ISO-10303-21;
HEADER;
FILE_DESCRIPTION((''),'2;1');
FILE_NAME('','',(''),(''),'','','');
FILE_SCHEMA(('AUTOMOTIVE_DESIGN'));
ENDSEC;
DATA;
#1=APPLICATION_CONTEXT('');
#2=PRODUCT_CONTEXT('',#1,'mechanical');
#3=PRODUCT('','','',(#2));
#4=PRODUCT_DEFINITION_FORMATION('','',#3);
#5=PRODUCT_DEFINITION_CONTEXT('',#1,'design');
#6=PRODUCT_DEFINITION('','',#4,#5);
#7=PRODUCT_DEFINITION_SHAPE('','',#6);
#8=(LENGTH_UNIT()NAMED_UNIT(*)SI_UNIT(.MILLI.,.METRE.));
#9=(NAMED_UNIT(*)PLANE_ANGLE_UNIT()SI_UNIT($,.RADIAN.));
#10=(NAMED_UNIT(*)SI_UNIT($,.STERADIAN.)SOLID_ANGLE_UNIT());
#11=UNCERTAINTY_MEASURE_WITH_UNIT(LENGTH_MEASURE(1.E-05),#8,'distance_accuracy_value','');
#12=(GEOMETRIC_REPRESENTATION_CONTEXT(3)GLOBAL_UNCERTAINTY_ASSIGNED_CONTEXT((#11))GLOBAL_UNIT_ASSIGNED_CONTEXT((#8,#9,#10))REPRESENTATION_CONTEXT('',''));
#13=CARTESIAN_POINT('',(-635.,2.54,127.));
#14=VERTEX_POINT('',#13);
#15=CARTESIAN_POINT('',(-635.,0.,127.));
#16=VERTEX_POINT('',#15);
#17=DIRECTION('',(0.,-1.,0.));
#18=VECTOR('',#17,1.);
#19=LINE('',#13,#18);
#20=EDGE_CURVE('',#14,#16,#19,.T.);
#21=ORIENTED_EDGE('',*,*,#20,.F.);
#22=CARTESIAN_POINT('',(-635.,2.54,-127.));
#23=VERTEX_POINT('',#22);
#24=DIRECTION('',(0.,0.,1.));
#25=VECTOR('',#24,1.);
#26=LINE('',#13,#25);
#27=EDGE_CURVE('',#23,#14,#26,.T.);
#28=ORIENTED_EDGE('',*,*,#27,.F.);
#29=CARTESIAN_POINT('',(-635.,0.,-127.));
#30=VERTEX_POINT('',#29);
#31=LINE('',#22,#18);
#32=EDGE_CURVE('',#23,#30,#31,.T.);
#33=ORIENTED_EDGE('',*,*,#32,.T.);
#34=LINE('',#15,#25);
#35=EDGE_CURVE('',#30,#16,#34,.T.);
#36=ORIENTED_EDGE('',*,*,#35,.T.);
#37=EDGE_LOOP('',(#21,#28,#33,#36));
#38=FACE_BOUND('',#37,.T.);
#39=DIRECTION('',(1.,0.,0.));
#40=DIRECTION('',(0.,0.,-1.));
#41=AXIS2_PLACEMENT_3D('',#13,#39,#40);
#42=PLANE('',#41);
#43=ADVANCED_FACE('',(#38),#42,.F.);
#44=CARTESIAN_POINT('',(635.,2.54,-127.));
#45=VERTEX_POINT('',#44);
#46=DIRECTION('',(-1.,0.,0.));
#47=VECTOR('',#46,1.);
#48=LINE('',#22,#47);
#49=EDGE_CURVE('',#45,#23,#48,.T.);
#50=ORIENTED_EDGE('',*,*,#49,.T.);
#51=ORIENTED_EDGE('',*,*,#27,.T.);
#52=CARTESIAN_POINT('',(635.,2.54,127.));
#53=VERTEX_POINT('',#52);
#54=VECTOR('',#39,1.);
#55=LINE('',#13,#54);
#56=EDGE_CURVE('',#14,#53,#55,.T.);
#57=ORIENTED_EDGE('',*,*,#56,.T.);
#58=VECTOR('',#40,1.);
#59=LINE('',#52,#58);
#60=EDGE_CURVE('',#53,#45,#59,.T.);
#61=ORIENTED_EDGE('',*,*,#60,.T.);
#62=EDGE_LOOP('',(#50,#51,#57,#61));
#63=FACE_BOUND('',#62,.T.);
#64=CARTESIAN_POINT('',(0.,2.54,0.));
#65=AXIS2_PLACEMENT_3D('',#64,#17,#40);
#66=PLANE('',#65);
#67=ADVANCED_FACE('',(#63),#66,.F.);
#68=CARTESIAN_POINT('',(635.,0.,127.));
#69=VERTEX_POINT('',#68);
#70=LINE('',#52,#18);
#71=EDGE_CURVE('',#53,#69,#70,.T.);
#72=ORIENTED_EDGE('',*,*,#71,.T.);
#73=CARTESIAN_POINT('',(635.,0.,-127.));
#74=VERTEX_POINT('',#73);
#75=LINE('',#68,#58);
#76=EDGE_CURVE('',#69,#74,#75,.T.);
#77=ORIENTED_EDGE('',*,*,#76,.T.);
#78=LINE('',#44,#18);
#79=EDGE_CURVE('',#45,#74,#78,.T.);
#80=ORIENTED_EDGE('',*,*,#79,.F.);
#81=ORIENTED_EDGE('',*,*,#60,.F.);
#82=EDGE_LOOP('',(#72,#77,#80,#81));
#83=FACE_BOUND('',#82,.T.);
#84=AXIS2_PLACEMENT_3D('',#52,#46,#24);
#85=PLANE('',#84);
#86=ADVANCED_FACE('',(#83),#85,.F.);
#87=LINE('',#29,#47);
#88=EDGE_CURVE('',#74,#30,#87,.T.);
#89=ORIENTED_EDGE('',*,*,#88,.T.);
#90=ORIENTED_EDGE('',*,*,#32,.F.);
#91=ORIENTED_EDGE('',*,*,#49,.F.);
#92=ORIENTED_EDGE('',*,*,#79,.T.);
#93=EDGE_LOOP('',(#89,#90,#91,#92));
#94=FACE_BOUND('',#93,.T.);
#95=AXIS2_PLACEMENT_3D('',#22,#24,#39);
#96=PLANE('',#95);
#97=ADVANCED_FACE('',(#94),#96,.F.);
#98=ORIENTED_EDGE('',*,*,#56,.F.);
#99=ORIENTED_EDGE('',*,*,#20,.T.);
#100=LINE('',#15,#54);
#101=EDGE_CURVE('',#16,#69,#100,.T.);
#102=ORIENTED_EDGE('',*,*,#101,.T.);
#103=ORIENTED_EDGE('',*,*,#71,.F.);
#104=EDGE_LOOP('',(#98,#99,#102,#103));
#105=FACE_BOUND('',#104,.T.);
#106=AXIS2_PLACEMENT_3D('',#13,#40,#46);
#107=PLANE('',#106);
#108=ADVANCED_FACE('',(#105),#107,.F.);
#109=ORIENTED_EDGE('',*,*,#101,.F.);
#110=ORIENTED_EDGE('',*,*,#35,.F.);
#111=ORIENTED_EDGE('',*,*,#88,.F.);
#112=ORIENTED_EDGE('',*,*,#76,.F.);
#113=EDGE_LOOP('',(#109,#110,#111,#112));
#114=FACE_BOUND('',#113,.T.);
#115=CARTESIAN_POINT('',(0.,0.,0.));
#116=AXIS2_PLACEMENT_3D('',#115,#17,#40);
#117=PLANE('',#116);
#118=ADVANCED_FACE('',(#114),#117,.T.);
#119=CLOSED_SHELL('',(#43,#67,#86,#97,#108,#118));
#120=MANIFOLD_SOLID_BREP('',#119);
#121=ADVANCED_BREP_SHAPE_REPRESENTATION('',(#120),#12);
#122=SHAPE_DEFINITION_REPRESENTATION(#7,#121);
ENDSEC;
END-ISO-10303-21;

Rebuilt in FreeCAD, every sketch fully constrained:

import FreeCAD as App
import Part
import Sketcher
Q = App.Units.Quantity


def add_polygon(sketch, points):
    """Adds a closed chain of lines whose ends are joined by coincident constraints."""
    first, n = sketch.GeometryCount, len(points)
    for a, b in zip(points, points[1:] + points[:1]):
        sketch.addGeometry(Part.LineSegment(App.Vector(*a, 0), App.Vector(*b, 0)), False)
    for i in range(n):
        sketch.addConstraint(Sketcher.Constraint("Coincident", first + i, 2, first + (i + 1) % n, 1))

doc = App.newDocument("Part")
body = doc.addObject("PartDesign::Body", "Body")

# Sketch on XZ plane
sketch1 = body.newObject("Sketcher::SketchObject", "Sketch")
sketch1.AttachmentSupport = (doc.getObject("XZ_Plane"), [""])
sketch1.MapMode = "FlatFace"
add_polygon(sketch1, [(-635, -127), (-635, 127), (635, 127), (635, -127)])  # lines 0-3
sketch1.addConstraint([
    Sketcher.Constraint("Vertical", 0),
    Sketcher.Constraint("Horizontal", 1),
    Sketcher.Constraint("Vertical", 2),
    Sketcher.Constraint("Horizontal", 3),
    Sketcher.Constraint("Symmetric", 0, 2, 2, 2, -1, 1),
    Sketcher.Constraint("DistanceX", 1, 1, 1, 2, Q("50 in")),
    Sketcher.Constraint("DistanceY", 0, 1, 0, 2, Q("10 in")),
])
pad1 = body.newObject("PartDesign::Pad", "Pad")
pad1.Profile = sketch1
pad1.Length = Q("0.1 in")
pad1.Reversed = True

doc.recompute()
